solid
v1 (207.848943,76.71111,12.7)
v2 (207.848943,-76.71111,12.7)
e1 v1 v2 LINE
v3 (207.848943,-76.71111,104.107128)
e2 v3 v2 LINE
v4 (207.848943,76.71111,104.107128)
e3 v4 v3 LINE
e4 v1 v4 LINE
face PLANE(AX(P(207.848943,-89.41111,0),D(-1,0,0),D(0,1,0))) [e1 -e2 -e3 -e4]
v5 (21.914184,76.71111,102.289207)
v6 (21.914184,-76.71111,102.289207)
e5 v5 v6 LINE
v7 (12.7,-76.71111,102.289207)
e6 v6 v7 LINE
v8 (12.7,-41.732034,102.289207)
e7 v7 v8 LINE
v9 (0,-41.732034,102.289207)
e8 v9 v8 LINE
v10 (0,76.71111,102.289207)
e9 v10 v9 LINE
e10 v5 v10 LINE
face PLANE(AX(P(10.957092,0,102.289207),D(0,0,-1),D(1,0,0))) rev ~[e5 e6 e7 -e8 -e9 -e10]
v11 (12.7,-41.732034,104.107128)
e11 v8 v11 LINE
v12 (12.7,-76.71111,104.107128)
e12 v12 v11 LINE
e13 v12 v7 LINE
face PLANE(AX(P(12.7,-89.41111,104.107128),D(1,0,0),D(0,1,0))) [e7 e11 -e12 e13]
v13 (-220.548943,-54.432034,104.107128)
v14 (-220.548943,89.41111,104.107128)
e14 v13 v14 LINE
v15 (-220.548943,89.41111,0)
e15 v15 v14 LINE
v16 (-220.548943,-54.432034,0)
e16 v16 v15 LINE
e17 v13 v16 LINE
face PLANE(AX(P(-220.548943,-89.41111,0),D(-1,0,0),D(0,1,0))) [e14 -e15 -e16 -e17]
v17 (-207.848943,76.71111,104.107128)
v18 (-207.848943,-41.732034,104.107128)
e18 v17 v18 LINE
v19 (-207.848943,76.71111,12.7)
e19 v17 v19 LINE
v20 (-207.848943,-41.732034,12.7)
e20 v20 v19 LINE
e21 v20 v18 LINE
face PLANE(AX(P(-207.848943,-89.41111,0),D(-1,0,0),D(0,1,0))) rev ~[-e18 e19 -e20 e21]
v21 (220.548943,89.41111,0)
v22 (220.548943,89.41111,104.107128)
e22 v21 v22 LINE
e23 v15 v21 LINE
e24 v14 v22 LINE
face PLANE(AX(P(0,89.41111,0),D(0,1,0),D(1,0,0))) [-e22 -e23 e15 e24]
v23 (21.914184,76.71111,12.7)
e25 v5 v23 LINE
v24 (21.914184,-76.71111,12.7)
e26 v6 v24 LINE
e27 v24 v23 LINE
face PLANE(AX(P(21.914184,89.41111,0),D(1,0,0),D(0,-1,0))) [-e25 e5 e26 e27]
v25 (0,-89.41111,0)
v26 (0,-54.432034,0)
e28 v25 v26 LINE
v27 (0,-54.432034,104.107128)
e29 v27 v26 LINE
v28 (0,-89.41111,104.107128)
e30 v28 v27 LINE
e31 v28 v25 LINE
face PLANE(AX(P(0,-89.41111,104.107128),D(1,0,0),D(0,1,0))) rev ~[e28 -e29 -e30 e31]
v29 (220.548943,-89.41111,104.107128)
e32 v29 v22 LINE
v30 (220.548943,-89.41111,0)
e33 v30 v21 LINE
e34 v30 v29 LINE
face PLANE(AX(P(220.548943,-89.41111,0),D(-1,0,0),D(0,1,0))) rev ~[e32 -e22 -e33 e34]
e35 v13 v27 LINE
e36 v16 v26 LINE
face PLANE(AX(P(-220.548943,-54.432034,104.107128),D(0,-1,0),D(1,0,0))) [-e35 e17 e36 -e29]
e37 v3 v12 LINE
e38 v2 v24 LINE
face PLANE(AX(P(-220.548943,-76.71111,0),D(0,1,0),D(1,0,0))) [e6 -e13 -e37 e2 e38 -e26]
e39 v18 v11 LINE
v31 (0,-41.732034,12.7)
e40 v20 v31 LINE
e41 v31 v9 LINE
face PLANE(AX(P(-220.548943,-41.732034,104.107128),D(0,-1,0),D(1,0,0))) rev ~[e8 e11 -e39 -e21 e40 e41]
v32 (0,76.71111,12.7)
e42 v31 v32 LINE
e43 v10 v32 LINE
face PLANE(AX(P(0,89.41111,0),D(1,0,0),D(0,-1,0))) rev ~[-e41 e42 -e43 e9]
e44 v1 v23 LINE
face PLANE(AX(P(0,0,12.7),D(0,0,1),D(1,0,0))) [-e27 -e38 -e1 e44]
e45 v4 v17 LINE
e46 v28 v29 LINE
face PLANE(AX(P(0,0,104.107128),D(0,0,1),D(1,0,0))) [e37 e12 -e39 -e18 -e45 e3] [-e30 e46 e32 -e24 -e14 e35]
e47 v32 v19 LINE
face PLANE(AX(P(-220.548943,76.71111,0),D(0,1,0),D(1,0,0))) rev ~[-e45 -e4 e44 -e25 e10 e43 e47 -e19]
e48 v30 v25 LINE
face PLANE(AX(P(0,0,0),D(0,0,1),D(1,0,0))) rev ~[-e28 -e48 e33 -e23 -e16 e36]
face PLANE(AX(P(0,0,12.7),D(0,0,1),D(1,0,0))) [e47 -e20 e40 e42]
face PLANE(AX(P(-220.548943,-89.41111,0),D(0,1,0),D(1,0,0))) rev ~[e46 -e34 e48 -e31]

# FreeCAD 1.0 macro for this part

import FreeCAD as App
import Part
import Sketcher

V = App.Vector


def faces_at(feature, points):
    """Names of the faces that lie closest to the given points."""
    faces = feature.Shape.Faces
    near = lambda p: min(range(len(faces)), key=lambda i: faces[i].distToShape(Part.Vertex(*p))[0])
    return sorted({f"Face{near(p) + 1}" for p in points})

doc = App.newDocument("Part")
params = doc.addObject("Spreadsheet::Sheet", "Params")
for row, (alias, value) in enumerate([
    ("pad1_length", "104.107128 mm"),
    ("pocket1_length", "137.185628 mm"),
    ("thickness_wall", "0.5 in"),
    ("pad2_length", "102.289207 mm"),
], start=1):
    params.set(f"A{row}", alias)
    params.set(f"B{row}", "=" + value)
    params.setAlias(f"B{row}", alias)

body = doc.addObject("PartDesign::Body", "Body")

# Sketch on XY plane
sketch1 = doc.addObject("Sketcher::SketchObject", "Sketch")
body.addObject(sketch1)
sketch1.AttachmentSupport = (doc.XY_Plane, [""])
sketch1.MapMode = "FlatFace"
sketch1.addGeometry([
    Part.LineSegment(V(-221, 89, 0), V(-221, -89, 0)),
    Part.LineSegment(V(-221, -89, 0), V(221, -89, 0)),
    Part.LineSegment(V(221, -89, 0), V(221, 89, 0)),
    Part.LineSegment(V(221, 89, 0), V(-221, 89, 0)),
], False)
sketch1.addConstraint([
    Sketcher.Constraint("Coincident", 0, 2, 1, 1),
    Sketcher.Constraint("Coincident", 1, 2, 2, 1),
    Sketcher.Constraint("Coincident", 2, 2, 3, 1),
    Sketcher.Constraint("Coincident", 3, 2, 0, 1),
    Sketcher.Constraint("Vertical", 0),
    Sketcher.Constraint("Horizontal", 1),
    Sketcher.Constraint("Vertical", 2),
    Sketcher.Constraint("Horizontal", 3),
    Sketcher.Constraint("Symmetric", 0, 2, 2, 2, -1, 1),
    Sketcher.Constraint("DistanceY", 0, 2, 0, 1, 178.822219),
    Sketcher.Constraint("DistanceX", 1, 1, 1, 2, 441.097885),
])
pad1 = doc.addObject("PartDesign::Pad", "Pad")
body.addObject(pad1)
pad1.Profile = sketch1
pad1.setExpression("Length", "Params.pad1_length")

# Sketch on XY plane
sketch2 = doc.addObject("Sketcher::SketchObject", "Sketch001")
body.addObject(sketch2)
sketch2.AttachmentSupport = (doc.XY_Plane, [""])
sketch2.MapMode = "FlatFace"
sketch2.AttachmentOffset = App.Placement(V(0, 0, 104.107128), App.Rotation())
sketch2.addGeometry([
    Part.LineSegment(V(-221, -54, 0), V(-221, -89, 0)),
    Part.LineSegment(V(-221, -89, 0), V(0, -89, 0)),
    Part.LineSegment(V(0, -89, 0), V(0, -54, 0)),
    Part.LineSegment(V(0, -54, 0), V(-221, -54, 0)),
], False)
sketch2.addConstraint([
    Sketcher.Constraint("Coincident", 0, 2, 1, 1),
    Sketcher.Constraint("Coincident", 1, 2, 2, 1),
    Sketcher.Constraint("Coincident", 2, 2, 3, 1),
    Sketcher.Constraint("Coincident", 3, 2, 0, 1),
    Sketcher.Constraint("Vertical", 0),
    Sketcher.Constraint("Horizontal", 1),
    Sketcher.Constraint("Vertical", 2),
    Sketcher.Constraint("Horizontal", 3),
    Sketcher.Constraint("PointOnObject", 1, 2, -2),
    Sketcher.Constraint("DistanceX", 1, 1, 1, 2, 220.548943),
    Sketcher.Constraint("DistanceY", 0, 2, 0, 1, 34.979075),
    Sketcher.Constraint("DistanceY", 0, 2, -1, 1, 89.41111),
])
pocket1 = doc.addObject("PartDesign::Pocket", "Pocket")
body.addObject(pocket1)
pocket1.Profile = sketch2
pocket1.setExpression("Length", "Params.pocket1_length")
doc.recompute()

thickness = doc.addObject("PartDesign::Thickness", "Thickness")
body.addObject(thickness)
thickness.Base = (pocket1, faces_at(pocket1, [(0, 0, 104.107)]))
thickness.setExpression("Value", "Params.thickness_wall")
thickness.Reversed = True
thickness.Join = "Intersection"

# Sketch on XY plane
sketch3 = doc.addObject("Sketcher::SketchObject", "Sketch002")
body.addObject(sketch3)
sketch3.AttachmentSupport = (doc.XY_Plane, [""])
sketch3.MapMode = "FlatFace"
sketch3.addGeometry([
    Part.LineSegment(V(0, -89, 0), V(0, 89, 0)),
    Part.LineSegment(V(0, 89, 0), V(22, 89, 0)),
    Part.LineSegment(V(22, 89, 0), V(22, -89, 0)),
    Part.LineSegment(V(22, -89, 0), V(0, -89, 0)),
], False)
sketch3.addConstraint([
    Sketcher.Constraint("Coincident", 0, 2, 1, 1),
    Sketcher.Constraint("Coincident", 1, 2, 2, 1),
    Sketcher.Constraint("Coincident", 2, 2, 3, 1),
    Sketcher.Constraint("Coincident", 3, 2, 0, 1),
    Sketcher.Constraint("Vertical", 0),
    Sketcher.Constraint("Horizontal", 1),
    Sketcher.Constraint("Vertical", 2),
    Sketcher.Constraint("Horizontal", 3),
    Sketcher.Constraint("Symmetric", 0, 2, 3, 2, -1, 1),
    Sketcher.Constraint("DistanceY", 0, 1, 0, 2, 178.822219),
    Sketcher.Constraint("DistanceX", 1, 1, 1, 2, 21.914184),
])
pad2 = doc.addObject("PartDesign::Pad", "Pad001")
body.addObject(pad2)
pad2.Profile = sketch3
pad2.setExpression("Length", "Params.pad2_length")

doc.recompute()
